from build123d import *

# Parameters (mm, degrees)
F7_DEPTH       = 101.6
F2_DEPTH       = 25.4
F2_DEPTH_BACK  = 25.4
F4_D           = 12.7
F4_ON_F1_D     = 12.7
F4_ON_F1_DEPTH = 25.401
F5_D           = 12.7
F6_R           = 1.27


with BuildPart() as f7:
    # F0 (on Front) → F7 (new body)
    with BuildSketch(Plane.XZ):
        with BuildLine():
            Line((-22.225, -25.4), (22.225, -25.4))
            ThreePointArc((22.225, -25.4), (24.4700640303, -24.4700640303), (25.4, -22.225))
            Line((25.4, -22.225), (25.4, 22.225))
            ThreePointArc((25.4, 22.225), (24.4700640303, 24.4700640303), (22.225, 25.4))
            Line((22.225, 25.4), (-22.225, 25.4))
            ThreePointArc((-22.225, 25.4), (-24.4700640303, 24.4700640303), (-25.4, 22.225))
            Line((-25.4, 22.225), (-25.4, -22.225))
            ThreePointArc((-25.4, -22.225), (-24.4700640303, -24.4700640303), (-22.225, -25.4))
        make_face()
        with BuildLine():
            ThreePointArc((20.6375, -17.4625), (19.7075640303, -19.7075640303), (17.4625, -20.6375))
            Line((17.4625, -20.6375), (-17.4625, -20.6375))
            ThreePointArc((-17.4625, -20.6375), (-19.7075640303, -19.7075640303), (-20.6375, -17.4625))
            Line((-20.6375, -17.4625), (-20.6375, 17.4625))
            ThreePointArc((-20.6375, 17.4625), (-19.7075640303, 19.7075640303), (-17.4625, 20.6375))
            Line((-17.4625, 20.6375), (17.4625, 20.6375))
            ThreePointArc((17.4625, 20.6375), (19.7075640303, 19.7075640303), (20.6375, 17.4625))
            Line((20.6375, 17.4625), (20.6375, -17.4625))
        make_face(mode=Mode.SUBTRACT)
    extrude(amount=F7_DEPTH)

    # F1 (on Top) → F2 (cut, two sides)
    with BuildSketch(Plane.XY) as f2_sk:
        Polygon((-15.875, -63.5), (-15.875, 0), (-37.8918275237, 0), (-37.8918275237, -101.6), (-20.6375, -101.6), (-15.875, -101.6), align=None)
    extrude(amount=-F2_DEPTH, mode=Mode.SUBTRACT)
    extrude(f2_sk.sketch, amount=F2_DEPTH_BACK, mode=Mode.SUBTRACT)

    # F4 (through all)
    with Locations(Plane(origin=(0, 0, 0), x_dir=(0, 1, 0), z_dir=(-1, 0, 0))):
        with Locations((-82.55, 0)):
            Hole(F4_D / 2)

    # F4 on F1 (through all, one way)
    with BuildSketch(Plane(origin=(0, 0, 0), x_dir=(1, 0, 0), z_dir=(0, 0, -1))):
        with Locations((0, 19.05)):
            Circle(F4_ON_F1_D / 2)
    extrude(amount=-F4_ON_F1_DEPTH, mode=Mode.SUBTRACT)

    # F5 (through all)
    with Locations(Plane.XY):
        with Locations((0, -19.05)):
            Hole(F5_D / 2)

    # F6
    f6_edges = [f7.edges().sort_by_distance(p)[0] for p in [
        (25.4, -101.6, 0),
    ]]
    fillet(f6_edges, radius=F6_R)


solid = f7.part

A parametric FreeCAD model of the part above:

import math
import FreeCAD as App
import Part
import Sketcher
from FreeCAD import Vector
Q = App.Units.Quantity


def edges_at(feature, points):
    """Names of the edges that pass closest to the given points."""
    edges = feature.Shape.Edges
    near = lambda p: min(range(len(edges)), key=lambda i: edges[i].distToShape(Part.Vertex(*p))[0])
    return sorted({f"Edge{near(p) + 1}" for p in points})


def add_polygon(sketch, points):
    """Adds a closed chain of lines whose ends are joined by coincident constraints."""
    first, n = sketch.GeometryCount, len(points)
    for a, b in zip(points, points[1:] + points[:1]):
        sketch.addGeometry(Part.LineSegment(App.Vector(*a, 0), App.Vector(*b, 0)), False)
    for i in range(n):
        sketch.addConstraint(Sketcher.Constraint("Coincident", first + i, 2, first + (i + 1) % n, 1))

doc = App.newDocument("Part")
params = doc.addObject("Spreadsheet::Sheet", "Params")
for row, (alias, value) in enumerate([
    ("sketch1_radius", "0.125 in"),
    ("sketch1_width", "1.375 in"),
    ("pad1_length", "4 in"),
    ("sketch2_height", "4 in"),
    ("sketch3_diameter", "0.5 in"),
    ("hole_diameter", "0.5 in"),
    ("sketch4_diameter", "0.5 in"),
    ("sketch5_diameter", "0.5 in"),
    ("hole2_diameter", "0.5 in"),
    ("fillet_radius", "0.05 in"),
], start=1):
    params.set(f"A{row}", alias)
    params.set(f"B{row}", "=" + value)
    params.setAlias(f"B{row}", alias)

body = doc.addObject("PartDesign::Body", "Body")

# Sketch on XZ plane
sketch1 = body.newObject("Sketcher::SketchObject", "Sketch")
sketch1.AttachmentSupport = (doc.getObject("XZ_Plane"), [""])
sketch1.MapMode = "FlatFace"
sketch1.addGeometry(Part.LineSegment(Vector(-22.225, -25.4, 0), Vector(22.225, -25.4, 0)), False)
sketch1.addGeometry(Part.ArcOfCircle(Part.Circle(Vector(22.225, -22.225, 0), Vector(0, 0, 1), 3.175), math.radians(-90), math.radians(0)), False)
sketch1.addGeometry(Part.LineSegment(Vector(25.4, -22.225, 0), Vector(25.4, 22.225, 0)), False)
sketch1.addGeometry(Part.ArcOfCircle(Part.Circle(Vector(22.225, 22.225, 0), Vector(0, 0, 1), 3.175), math.radians(0), math.radians(90)), False)
sketch1.addGeometry(Part.LineSegment(Vector(22.225, 25.4, 0), Vector(-22.225, 25.4, 0)), False)
sketch1.addGeometry(Part.ArcOfCircle(Part.Circle(Vector(-22.225, 22.225, 0), Vector(0, 0, 1), 3.175), math.radians(90), math.radians(180)), False)
sketch1.addGeometry(Part.LineSegment(Vector(-25.4, 22.225, 0), Vector(-25.4, -22.225, 0)), False)
sketch1.addGeometry(Part.ArcOfCircle(Part.Circle(Vector(-22.225, -22.225, 0), Vector(0, 0, 1), 3.175), math.radians(180), math.radians(270)), False)
sketch1.addGeometry(Part.LineSegment(Vector(20.6375, 17.4625, 0), Vector(20.6375, -17.4625, 0)), False)
sketch1.addGeometry(Part.ArcOfCircle(Part.Circle(Vector(17.4625, -17.4625, 0), Vector(0, 0, 1), 3.175), math.radians(-90), math.radians(0)), False)
sketch1.addGeometry(Part.LineSegment(Vector(17.4625, -20.6375, 0), Vector(-17.4625, -20.6375, 0)), False)
sketch1.addGeometry(Part.ArcOfCircle(Part.Circle(Vector(-17.4625, -17.4625, 0), Vector(0, 0, 1), 3.175), math.radians(180), math.radians(270)), False)
sketch1.addGeometry(Part.LineSegment(Vector(-20.6375, -17.4625, 0), Vector(-20.6375, 17.4625, 0)), False)
sketch1.addGeometry(Part.ArcOfCircle(Part.Circle(Vector(-17.4625, 17.4625, 0), Vector(0, 0, 1), 3.175), math.radians(90), math.radians(180)), False)
sketch1.addGeometry(Part.LineSegment(Vector(-17.4625, 20.6375, 0), Vector(17.4625, 20.6375, 0)), False)
sketch1.addGeometry(Part.ArcOfCircle(Part.Circle(Vector(17.4625, 17.4625, 0), Vector(0, 0, 1), 3.175), math.radians(0), math.radians(90)), False)
sketch1.addConstraint(Sketcher.Constraint("Tangent", 0, 2, 1, 1))
sketch1.addConstraint(Sketcher.Constraint("Tangent", 1, 2, 2, 1))
sketch1.addConstraint(Sketcher.Constraint("Tangent", 2, 2, 3, 1))
sketch1.addConstraint(Sketcher.Constraint("Tangent", 3, 2, 4, 1))
sketch1.addConstraint(Sketcher.Constraint("Tangent", 4, 2, 5, 1))
sketch1.addConstraint(Sketcher.Constraint("Tangent", 5, 2, 6, 1))
sketch1.addConstraint(Sketcher.Constraint("Tangent", 6, 2, 7, 1))
sketch1.addConstraint(Sketcher.Constraint("Tangent", 7, 2, 0, 1))
sketch1.addConstraint(Sketcher.Constraint("Tangent", 8, 2, 9, 2))
sketch1.addConstraint(Sketcher.Constraint("Tangent", 9, 1, 10, 1))
sketch1.addConstraint(Sketcher.Constraint("Tangent", 10, 2, 11, 2))
sketch1.addConstraint(Sketcher.Constraint("Tangent", 11, 1, 12, 1))
sketch1.addConstraint(Sketcher.Constraint("Tangent", 12, 2, 13, 2))
sketch1.addConstraint(Sketcher.Constraint("Tangent", 13, 1, 14, 1))
sketch1.addConstraint(Sketcher.Constraint("Tangent", 14, 2, 15, 2))
sketch1.addConstraint(Sketcher.Constraint("Tangent", 15, 1, 8, 1))
sketch1.addConstraint(Sketcher.Constraint("Horizontal", 0))
sketch1.addConstraint(Sketcher.Constraint("Vertical", 2))
sketch1.addConstraint(Sketcher.Constraint("Horizontal", 4))
sketch1.addConstraint(Sketcher.Constraint("Vertical", 6))
sketch1.addConstraint(Sketcher.Constraint("Vertical", 8))
sketch1.addConstraint(Sketcher.Constraint("Horizontal", 10))
sketch1.addConstraint(Sketcher.Constraint("Vertical", 12))
sketch1.addConstraint(Sketcher.Constraint("Horizontal", 14))
sketch1.addConstraint(Sketcher.Constraint("Equal", 1, 3))
sketch1.addConstraint(Sketcher.Constraint("Equal", 3, 5))
sketch1.addConstraint(Sketcher.Constraint("Equal", 5, 7))
sketch1.addConstraint(Sketcher.Constraint("Equal", 7, 9))
sketch1.addConstraint(Sketcher.Constraint("Equal", 9, 11))
sketch1.addConstraint(Sketcher.Constraint("Equal", 11, 13))
sketch1.addConstraint(Sketcher.Constraint("Equal", 13, 15))
sketch1.addConstraint(Sketcher.Constraint("Symmetric", 1, 3, 5, 3, -1, 1))
sketch1.addConstraint(Sketcher.Constraint("Symmetric", 9, 3, 13, 3, -1, 1))
sketch1.addConstraint(Sketcher.Constraint("Equal", 4, 2))
sketch1.addConstraint(Sketcher.Constraint("Equal", 14, 8))
sketch1.addConstraint(Sketcher.Constraint("DistanceY", 0, 2, -1, 1, Q("1 in")))
sketch1.addConstraint(Sketcher.Constraint("Radius", 1, Q("0.125 in")))
sketch1.addConstraint(Sketcher.Constraint("DistanceX", 10, 2, 10, 1, Q("1.375 in")))
sketch1.setExpression("Constraints[36]", "Params.sketch1_radius")
sketch1.setExpression("Constraints[37]", "Params.sketch1_width")
pad1 = body.newObject("PartDesign::Pad", "Pad")
pad1.Profile = sketch1
pad1.setExpression("Length", "Params.pad1_length")

# Sketch on XY plane
sketch2 = body.newObject("Sketcher::SketchObject", "Sketch001")
sketch2.AttachmentSupport = (doc.getObject("XY_Plane"), [""])
sketch2.MapMode = "FlatFace"
add_polygon(sketch2, [(-15.875, 0), (-37.891828, 0), (-37.891828, -101.6), (-15.875, -101.6)])  # lines 0-3
sketch2.addConstraint(Sketcher.Constraint("Horizontal", 0))
sketch2.addConstraint(Sketcher.Constraint("Vertical", 1))
sketch2.addConstraint(Sketcher.Constraint("Horizontal", 2))
sketch2.addConstraint(Sketcher.Constraint("Vertical", 3))
sketch2.addConstraint(Sketcher.Constraint("PointOnObject", 0, 2, -1))
sketch2.addConstraint(Sketcher.Constraint("DistanceY", 1, 2, 1, 1, Q("4 in")))
sketch2.addConstraint(Sketcher.Constraint("DistanceX", 2, 2, -1, 1, Q("0.625 in")))
sketch2.addConstraint(Sketcher.Constraint("DistanceX", 0, 2, 0, 1, Q("22.016828 mm")))
sketch2.setExpression("Constraints[9]", "Params.sketch2_height")
pocket1 = body.newObject("PartDesign::Pocket", "Pocket")
pocket1.Profile = sketch2
pocket1.Type = "ThroughAll"
pocket1.Midplane = True

# Sketch on YZ plane
sketch3 = body.newObject("Sketcher::SketchObject", "Sketch002")
sketch3.AttachmentSupport = (doc.getObject("YZ_Plane"), [""])
sketch3.MapMode = "FlatFace"
sketch3.addGeometry(Part.Circle(Vector(-82.55, 0, 0), Vector(0, 0, 1), 6.35), False)
sketch3.addConstraint(Sketcher.Constraint("PointOnObject", 0, 3, -1))
sketch3.addConstraint(Sketcher.Constraint("Diameter", 0, Q("0.5 in")))
sketch3.addConstraint(Sketcher.Constraint("DistanceX", 0, 3, -1, 1, Q("3.25 in")))
sketch3.setExpression("Constraints[1]", "Params.sketch3_diameter")
doc.recompute()
hole = body.newObject("PartDesign::Hole", "Hole")
hole.Profile = sketch3
hole.ThreadType = "None"
hole.setExpression("Diameter", "Params.hole_diameter")
hole.DepthType = "ThroughAll"
hole.Reversed = True

# Sketch on XY plane
sketch4 = body.newObject("Sketcher::SketchObject", "Sketch003")
sketch4.AttachmentSupport = (doc.getObject("XY_Plane"), [""])
sketch4.MapMode = "FlatFace"
sketch4.addGeometry(Part.Circle(Vector(0, -19.05, 0), Vector(0, 0, 1), 6.35), False)
sketch4.addConstraint(Sketcher.Constraint("PointOnObject", 0, 3, -2))
sketch4.addConstraint(Sketcher.Constraint("Diameter", 0, Q("0.5 in")))
sketch4.addConstraint(Sketcher.Constraint("DistanceY", 0, 3, -1, 1, Q("0.75 in")))
sketch4.setExpression("Constraints[1]", "Params.sketch4_diameter")
pocket2 = body.newObject("PartDesign::Pocket", "Pocket001")
pocket2.Profile = sketch4
pocket2.Type = "ThroughAll"
pocket2.Reversed = True

# Sketch on XY plane
sketch5 = body.newObject("Sketcher::SketchObject", "Sketch004")
sketch5.AttachmentSupport = (doc.getObject("XY_Plane"), [""])
sketch5.MapMode = "FlatFace"
sketch5.addGeometry(Part.Circle(Vector(0, -19.05, 0), Vector(0, 0, 1), 6.35), False)
sketch5.addConstraint(Sketcher.Constraint("PointOnObject", 0, 3, -2))
sketch5.addConstraint(Sketcher.Constraint("Diameter", 0, Q("0.5 in")))
sketch5.addConstraint(Sketcher.Constraint("DistanceY", 0, 3, -1, 1, Q("0.75 in")))
sketch5.setExpression("Constraints[1]", "Params.sketch5_diameter")
doc.recompute()
hole2 = body.newObject("PartDesign::Hole", "Hole001")
hole2.Profile = sketch5
hole2.ThreadType = "None"
hole2.setExpression("Diameter", "Params.hole2_diameter")
hole2.DepthType = "ThroughAll"
doc.recompute()

fillet = body.newObject("PartDesign::Fillet", "Fillet")
fillet.Base = (hole2, edges_at(hole2, [(25.4, -101.6, 0)]))
fillet.setExpression("Radius", "Params.fillet_radius")

doc.recompute()
